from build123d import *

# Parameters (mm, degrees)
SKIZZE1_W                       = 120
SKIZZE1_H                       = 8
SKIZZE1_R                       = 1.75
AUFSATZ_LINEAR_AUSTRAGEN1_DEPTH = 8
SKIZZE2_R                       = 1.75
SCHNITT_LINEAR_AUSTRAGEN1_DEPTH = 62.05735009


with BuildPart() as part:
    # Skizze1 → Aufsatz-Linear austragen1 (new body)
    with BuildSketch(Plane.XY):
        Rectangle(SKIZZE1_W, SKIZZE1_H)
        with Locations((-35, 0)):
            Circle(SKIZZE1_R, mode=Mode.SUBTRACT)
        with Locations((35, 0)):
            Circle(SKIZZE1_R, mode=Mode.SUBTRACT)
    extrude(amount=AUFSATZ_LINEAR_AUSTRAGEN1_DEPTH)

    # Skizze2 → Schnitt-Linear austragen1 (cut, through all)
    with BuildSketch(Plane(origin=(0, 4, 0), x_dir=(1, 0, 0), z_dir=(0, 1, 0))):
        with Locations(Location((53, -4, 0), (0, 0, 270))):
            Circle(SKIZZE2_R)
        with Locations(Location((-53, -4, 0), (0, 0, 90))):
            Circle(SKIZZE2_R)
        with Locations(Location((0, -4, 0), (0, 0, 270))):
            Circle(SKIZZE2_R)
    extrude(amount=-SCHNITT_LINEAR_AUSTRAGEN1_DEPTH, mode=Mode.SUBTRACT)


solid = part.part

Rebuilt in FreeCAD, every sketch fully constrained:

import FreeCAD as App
import Part
import Sketcher


def add_polygon(sketch, points):
    """Adds a closed chain of lines whose ends are joined by coincident constraints."""
    first, n = sketch.GeometryCount, len(points)
    for a, b in zip(points, points[1:] + points[:1]):
        sketch.addGeometry(Part.LineSegment(App.Vector(*a, 0), App.Vector(*b, 0)), False)
    for i in range(n):
        sketch.addConstraint(Sketcher.Constraint("Coincident", first + i, 2, first + (i + 1) % n, 1))

doc = App.newDocument("Part")
body = doc.addObject("PartDesign::Body", "Body")

sketch1 = body.newObject("Sketcher::SketchObject", "Sketch")
sketch1.AttachmentSupport = (doc.getObject("XY_Plane"), [""])
sketch1.MapMode = "FlatFace"
add_polygon(sketch1, [(-60, 4), (-60, -4), (60, -4), (60, 4)])
sketch1.addGeometry(Part.Circle(App.Vector(-35, 0, 0), App.Vector(0, 0, 1), 1.75), False)
sketch1.addGeometry(Part.Circle(App.Vector(35, 0, 0), App.Vector(0, 0, 1), 1.75), False)
sketch1.addConstraint(Sketcher.Constraint("Vertical", 0))
sketch1.addConstraint(Sketcher.Constraint("Horizontal", 1))
sketch1.addConstraint(Sketcher.Constraint("Vertical", 2))
sketch1.addConstraint(Sketcher.Constraint("Horizontal", 3))
sketch1.addConstraint(Sketcher.Constraint("Equal", 4, 5))
sketch1.addConstraint(Sketcher.Constraint("Symmetric", 4, 3, 5, 3, -1, 1))
sketch1.addConstraint(Sketcher.Constraint("Symmetric", 0, 2, 2, 2, -1, 1))
sketch1.addConstraint(Sketcher.Constraint("PointOnObject", 4, 3, -1))
sketch1.addConstraint(Sketcher.Constraint("Diameter", 4, 3.5))
sketch1.addConstraint(Sketcher.Constraint("DistanceX", 1, 1, 1, 2, 120.0))
sketch1.addConstraint(Sketcher.Constraint("DistanceY", 0, 2, 0, 1, 8.0))
sketch1.addConstraint(Sketcher.Constraint("DistanceX", 4, 3, -1, 1, 35.0))
pad1 = body.newObject("PartDesign::Pad", "Pad")
pad1.Profile = sketch1
pad1.Length = 8

sketch2 = body.newObject("Sketcher::SketchObject", "Sketch001")
sketch2.AttachmentSupport = (doc.getObject("XZ_Plane"), [""])
sketch2.MapMode = "FlatFace"
sketch2.AttachmentOffset = App.Placement(App.Vector(0, 0, -4), App.Rotation())
sketch2.addGeometry(Part.Circle(App.Vector(53, 4, 0), App.Vector(0, 0, 1), 1.75), False)
sketch2.addGeometry(Part.Circle(App.Vector(-53, 4, 0), App.Vector(0, 0, 1), 1.75), False)
sketch2.addGeometry(Part.Circle(App.Vector(0, 4, 0), App.Vector(0, 0, 1), 1.75), False)
sketch2.addConstraint(Sketcher.Constraint("Equal", 0, 1))
sketch2.addConstraint(Sketcher.Constraint("Equal", 1, 2))
sketch2.addConstraint(Sketcher.Constraint("Symmetric", 0, 3, 1, 3, -2))
sketch2.addConstraint(Sketcher.Constraint("PointOnObject", 2, 3, -2))
sketch2.addConstraint(Sketcher.Constraint("Horizontal", 1, 3, 2, 3))
sketch2.addConstraint(Sketcher.Constraint("Diameter", 0, 3.5))
sketch2.addConstraint(Sketcher.Constraint("DistanceX", -1, 1, 0, 3, 53.0))
sketch2.addConstraint(Sketcher.Constraint("DistanceY", -1, 1, 0, 3, 4.0))
pocket1 = body.newObject("PartDesign::Pocket", "Pocket")
pocket1.Profile = sketch2
pocket1.Type = "ThroughAll"
pocket1.Reversed = True

doc.recompute()
